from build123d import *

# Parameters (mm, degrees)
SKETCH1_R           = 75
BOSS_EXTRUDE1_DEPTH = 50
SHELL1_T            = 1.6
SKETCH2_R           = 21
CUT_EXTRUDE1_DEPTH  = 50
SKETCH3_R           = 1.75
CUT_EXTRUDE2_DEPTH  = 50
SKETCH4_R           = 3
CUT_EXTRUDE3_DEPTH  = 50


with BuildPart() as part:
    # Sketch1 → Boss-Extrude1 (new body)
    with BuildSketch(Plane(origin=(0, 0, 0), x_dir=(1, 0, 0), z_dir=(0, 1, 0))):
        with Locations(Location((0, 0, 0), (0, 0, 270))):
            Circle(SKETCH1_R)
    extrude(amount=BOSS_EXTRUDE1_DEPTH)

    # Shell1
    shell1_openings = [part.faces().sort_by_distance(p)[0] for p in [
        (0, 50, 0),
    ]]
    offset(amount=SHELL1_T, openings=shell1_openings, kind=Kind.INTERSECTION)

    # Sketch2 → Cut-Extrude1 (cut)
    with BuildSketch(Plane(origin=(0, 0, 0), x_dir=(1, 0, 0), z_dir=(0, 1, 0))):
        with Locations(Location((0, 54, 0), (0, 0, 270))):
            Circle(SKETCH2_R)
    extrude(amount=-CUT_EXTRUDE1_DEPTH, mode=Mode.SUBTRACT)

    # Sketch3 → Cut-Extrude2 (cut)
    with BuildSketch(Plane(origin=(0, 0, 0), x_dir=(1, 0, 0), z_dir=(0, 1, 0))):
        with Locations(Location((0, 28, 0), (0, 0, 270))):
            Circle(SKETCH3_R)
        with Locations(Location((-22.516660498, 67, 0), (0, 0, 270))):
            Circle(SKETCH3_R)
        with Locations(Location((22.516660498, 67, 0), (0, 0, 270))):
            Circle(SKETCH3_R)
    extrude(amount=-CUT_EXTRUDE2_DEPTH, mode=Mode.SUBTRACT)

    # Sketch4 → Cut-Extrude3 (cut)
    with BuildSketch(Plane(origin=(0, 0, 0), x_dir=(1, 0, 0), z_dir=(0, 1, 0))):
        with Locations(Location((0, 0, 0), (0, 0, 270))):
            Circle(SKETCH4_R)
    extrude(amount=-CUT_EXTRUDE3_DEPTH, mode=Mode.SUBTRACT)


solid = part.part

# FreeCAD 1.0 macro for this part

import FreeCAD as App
import Part
import Sketcher

V = App.Vector
Q = App.Units.Quantity


def faces_at(feature, points):
    """Names of the faces that lie closest to the given points."""
    faces = feature.Shape.Faces
    near = lambda p: min(range(len(faces)), key=lambda i: faces[i].distToShape(Part.Vertex(*p))[0])
    return sorted({f"Face{near(p) + 1}" for p in points})

doc = App.newDocument("Part")
body = doc.addObject("PartDesign::Body", "Body")

# Sketch on XZ plane
sketch1 = doc.addObject("Sketcher::SketchObject", "Sketch")
body.addObject(sketch1)
sketch1.AttachmentSupport = (doc.XZ_Plane, [""])
sketch1.MapMode = "FlatFace"
sketch1.addGeometry(Part.Circle(V(0, 0, 0), V(0, 0, 1), 75), False)
sketch1.addConstraint([
    Sketcher.Constraint("Coincident", 0, 3, -1, 1),
    Sketcher.Constraint("Diameter", 0, Q("150 mm")),
])
pad1 = doc.addObject("PartDesign::Pad", "Pad")
body.addObject(pad1)
pad1.Profile = sketch1
pad1.Length = 50
pad1.Reversed = True
doc.recompute()

thickness = doc.addObject("PartDesign::Thickness", "Thickness")
body.addObject(thickness)
thickness.Base = (pad1, faces_at(pad1, [(0, 50, 0)]))
thickness.Value = 1.6
thickness.Reversed = False
thickness.Join = "Intersection"

# Sketch on XZ plane
sketch2 = doc.addObject("Sketcher::SketchObject", "Sketch001")
body.addObject(sketch2)
sketch2.AttachmentSupport = (doc.XZ_Plane, [""])
sketch2.MapMode = "FlatFace"
sketch2.addGeometry(Part.Circle(V(0, -54, 0), V(0, 0, 1), 21), False)
sketch2.addConstraint([
    Sketcher.Constraint("PointOnObject", 0, 3, -2),
    Sketcher.Constraint("Diameter", 0, Q("42 mm")),
    Sketcher.Constraint("DistanceY", 0, 3, -1, 1, Q("54 mm")),
])
pocket1 = doc.addObject("PartDesign::Pocket", "Pocket")
body.addObject(pocket1)
pocket1.Profile = sketch2
pocket1.Length = 50
pocket1.Reversed = True

# Sketch on XZ plane
sketch3 = doc.addObject("Sketcher::SketchObject", "Sketch002")
body.addObject(sketch3)
sketch3.AttachmentSupport = (doc.XZ_Plane, [""])
sketch3.MapMode = "FlatFace"
sketch3.addGeometry([
    Part.Circle(V(0, -28, 0), V(0, 0, 1), 1.8),
    Part.Circle(V(-22.5, -67, 0), V(0, 0, 1), 1.8),
    Part.Circle(V(22.5, -67, 0), V(0, 0, 1), 1.8),
], False)
sketch3.addConstraint([
    Sketcher.Constraint("Equal", 0, 1),
    Sketcher.Constraint("Equal", 1, 2),
    Sketcher.Constraint("Symmetric", 1, 3, 2, 3, -2),
    Sketcher.Constraint("PointOnObject", 0, 3, -2),
    Sketcher.Constraint("Diameter", 0, Q("3.5 mm")),
    Sketcher.Constraint("DistanceY", 0, 3, -1, 1, Q("28 mm")),
    Sketcher.Constraint("DistanceY", 1, 3, -1, 1, Q("67 mm")),
    Sketcher.Constraint("DistanceX", 1, 3, -1, 1, Q("22.51666 mm")),
])
pocket2 = doc.addObject("PartDesign::Pocket", "Pocket001")
body.addObject(pocket2)
pocket2.Profile = sketch3
pocket2.Length = 50
pocket2.Reversed = True

# Sketch on XZ plane
sketch4 = doc.addObject("Sketcher::SketchObject", "Sketch003")
body.addObject(sketch4)
sketch4.AttachmentSupport = (doc.XZ_Plane, [""])
sketch4.MapMode = "FlatFace"
sketch4.addGeometry(Part.Circle(V(0, 0, 0), V(0, 0, 1), 3), False)
sketch4.addConstraint([
    Sketcher.Constraint("Coincident", 0, 3, -1, 1),
    Sketcher.Constraint("Diameter", 0, Q("6 mm")),
])
pocket3 = doc.addObject("PartDesign::Pocket", "Pocket002")
body.addObject(pocket3)
pocket3.Profile = sketch4
pocket3.Length = 50
pocket3.Reversed = True

doc.recompute()
